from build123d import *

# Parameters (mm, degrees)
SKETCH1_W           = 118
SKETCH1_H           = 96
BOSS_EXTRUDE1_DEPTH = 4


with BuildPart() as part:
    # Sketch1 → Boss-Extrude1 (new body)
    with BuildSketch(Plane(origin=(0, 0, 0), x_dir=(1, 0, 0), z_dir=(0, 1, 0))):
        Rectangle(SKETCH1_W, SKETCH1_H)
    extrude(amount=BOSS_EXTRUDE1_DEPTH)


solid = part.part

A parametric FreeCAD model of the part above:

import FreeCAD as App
import Part
import Sketcher

doc = App.newDocument("Part")
params = doc.addObject("Spreadsheet::Sheet", "Params")
for row, (alias, value) in enumerate([
    ("sketch1_width", "118 mm"),
    ("sketch1_height", "96 mm"),
    ("pad1_length", "4 mm"),
], start=1):
    params.set(f"A{row}", alias)
    params.set(f"B{row}", "=" + value)
    params.setAlias(f"B{row}", alias)

body = doc.addObject("PartDesign::Body", "Body")

# Sketch on XZ plane
sketch1 = doc.addObject("Sketcher::SketchObject", "Sketch")
body.addObject(sketch1)
sketch1.AttachmentSupport = (doc.XZ_Plane, [""])
sketch1.MapMode = "FlatFace"
sketch1.addGeometry([
    Part.LineSegment(App.Vector(-59, -48, 0), App.Vector(-59, 48, 0)),
    Part.LineSegment(App.Vector(-59, 48, 0), App.Vector(59, 48, 0)),
    Part.LineSegment(App.Vector(59, 48, 0), App.Vector(59, -48, 0)),
    Part.LineSegment(App.Vector(59, -48, 0), App.Vector(-59, -48, 0)),
], False)
sketch1.addConstraint([
    Sketcher.Constraint("Coincident", 0, 2, 1, 1),
    Sketcher.Constraint("Coincident", 1, 2, 2, 1),
    Sketcher.Constraint("Coincident", 2, 2, 3, 1),
    Sketcher.Constraint("Coincident", 3, 2, 0, 1),
    Sketcher.Constraint("Vertical", 0),
    Sketcher.Constraint("Horizontal", 1),
    Sketcher.Constraint("Vertical", 2),
    Sketcher.Constraint("Horizontal", 3),
    Sketcher.Constraint("Symmetric", 0, 2, 2, 2, -1, 1),
    Sketcher.Constraint("DistanceX", 1, 1, 1, 2, 118.0),
    Sketcher.Constraint("DistanceY", 0, 1, 0, 2, 96.0),
])
sketch1.setExpression("Constraints[9]", "Params.sketch1_width")
sketch1.setExpression("Constraints[10]", "Params.sketch1_height")
pad1 = doc.addObject("PartDesign::Pad", "Pad")
body.addObject(pad1)
pad1.Profile = sketch1
pad1.setExpression("Length", "Params.pad1_length")
pad1.Reversed = True

doc.recompute()
